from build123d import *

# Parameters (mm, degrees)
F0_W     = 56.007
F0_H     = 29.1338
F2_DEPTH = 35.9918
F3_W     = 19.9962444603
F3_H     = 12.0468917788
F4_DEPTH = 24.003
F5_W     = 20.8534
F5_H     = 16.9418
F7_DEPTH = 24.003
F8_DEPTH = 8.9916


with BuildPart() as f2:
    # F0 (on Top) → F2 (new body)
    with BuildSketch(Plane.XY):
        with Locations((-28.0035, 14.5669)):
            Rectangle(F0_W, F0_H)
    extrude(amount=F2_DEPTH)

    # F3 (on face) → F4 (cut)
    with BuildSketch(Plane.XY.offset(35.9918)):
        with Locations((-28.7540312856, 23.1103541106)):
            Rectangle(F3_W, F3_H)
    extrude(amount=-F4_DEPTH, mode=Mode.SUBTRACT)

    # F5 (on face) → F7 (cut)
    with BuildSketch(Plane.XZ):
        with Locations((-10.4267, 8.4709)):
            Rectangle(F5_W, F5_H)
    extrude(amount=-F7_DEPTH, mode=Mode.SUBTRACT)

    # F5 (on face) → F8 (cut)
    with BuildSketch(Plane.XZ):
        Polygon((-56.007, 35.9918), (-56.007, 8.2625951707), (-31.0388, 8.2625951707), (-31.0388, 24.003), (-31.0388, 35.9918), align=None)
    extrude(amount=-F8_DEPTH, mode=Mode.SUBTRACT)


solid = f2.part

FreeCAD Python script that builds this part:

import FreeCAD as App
import Part
import Sketcher

V = App.Vector
Q = App.Units.Quantity


def add_polygon(sketch, points):
    """Adds a closed chain of lines whose ends are joined by coincident constraints."""
    first, n = sketch.GeometryCount, len(points)
    for a, b in zip(points, points[1:] + points[:1]):
        sketch.addGeometry(Part.LineSegment(App.Vector(*a, 0), App.Vector(*b, 0)), False)
    for i in range(n):
        sketch.addConstraint(Sketcher.Constraint("Coincident", first + i, 2, first + (i + 1) % n, 1))

doc = App.newDocument("Part")
params = doc.addObject("Spreadsheet::Sheet", "Params")
for row, (alias, value) in enumerate([
    ("sketch1_width", "2.205 in"),
    ("sketch1_height", "1.147 in"),
    ("pad1_length", "1.417 in"),
    ("pocket1_length", "0.945 in"),
    ("sketch3_width", "0.821 in"),
    ("sketch3_height", "0.667 in"),
    ("pocket2_length", "0.945 in"),
    ("sketch4_width", "0.983 in"),
    ("pocket3_length", "0.354 in"),
], start=1):
    params.set(f"A{row}", alias)
    params.set(f"B{row}", "=" + value)
    params.setAlias(f"B{row}", alias)

body = doc.addObject("PartDesign::Body", "Body")

sketch1 = doc.addObject("Sketcher::SketchObject", "Sketch")
body.addObject(sketch1)
sketch1.AttachmentSupport = (doc.XY_Plane, [""])
sketch1.MapMode = "FlatFace"
add_polygon(sketch1, [(-56, 29), (-56, 0), (0, 0), (0, 29)])
sketch1.addConstraint([
    Sketcher.Constraint("Vertical", 0),
    Sketcher.Constraint("Horizontal", 1),
    Sketcher.Constraint("Vertical", 2),
    Sketcher.Constraint("Horizontal", 3),
    Sketcher.Constraint("Coincident", 1, 2, -1, 1),
    Sketcher.Constraint("DistanceX", 1, 1, 1, 2, Q("2.205 in")),
    Sketcher.Constraint("DistanceY", 0, 2, 0, 1, Q("1.147 in")),
])
sketch1.setExpression("Constraints[9]", "Params.sketch1_width")
sketch1.setExpression("Constraints[10]", "Params.sketch1_height")
pad1 = doc.addObject("PartDesign::Pad", "Pad")
body.addObject(pad1)
pad1.Profile = sketch1
pad1.setExpression("Length", "Params.pad1_length")

sketch2 = doc.addObject("Sketcher::SketchObject", "Sketch001")
body.addObject(sketch2)
sketch2.AttachmentSupport = (doc.XY_Plane, [""])
sketch2.MapMode = "FlatFace"
sketch2.AttachmentOffset = App.Placement(V(0, 0, 1.417 * 25.4), App.Rotation())
add_polygon(sketch2, [(-39, 29), (-39, 17), (-19, 17), (-19, 29)])
sketch2.addConstraint([
    Sketcher.Constraint("Vertical", 0),
    Sketcher.Constraint("Horizontal", 1),
    Sketcher.Constraint("Vertical", 2),
    Sketcher.Constraint("Horizontal", 3),
    Sketcher.Constraint("DistanceY", -1, 1, 2, 2, Q("1.147 in")),
    Sketcher.Constraint("DistanceY", 0, 2, 0, 1, Q("12.046892 mm")),
    Sketcher.Constraint("DistanceX", 1, 1, 1, 2, Q("19.996244 mm")),
    Sketcher.Constraint("DistanceX", 1, 2, -1, 1, Q("18.755909 mm")),
])
pocket1 = doc.addObject("PartDesign::Pocket", "Pocket")
body.addObject(pocket1)
pocket1.Profile = sketch2
pocket1.setExpression("Length", "Params.pocket1_length")

sketch3 = doc.addObject("Sketcher::SketchObject", "Sketch002")
body.addObject(sketch3)
sketch3.AttachmentSupport = (doc.XZ_Plane, [""])
sketch3.MapMode = "FlatFace"
add_polygon(sketch3, [(-21, 17), (-21, 0), (0, 0), (0, 17)])
sketch3.addConstraint([
    Sketcher.Constraint("Vertical", 0),
    Sketcher.Constraint("Horizontal", 1),
    Sketcher.Constraint("Vertical", 2),
    Sketcher.Constraint("Horizontal", 3),
    Sketcher.Constraint("Coincident", 1, 2, -1, 1),
    Sketcher.Constraint("DistanceX", 1, 1, 1, 2, Q("0.821 in")),
    Sketcher.Constraint("DistanceY", 0, 2, 0, 1, Q("0.667 in")),
])
sketch3.setExpression("Constraints[9]", "Params.sketch3_width")
sketch3.setExpression("Constraints[10]", "Params.sketch3_height")
pocket2 = doc.addObject("PartDesign::Pocket", "Pocket001")
body.addObject(pocket2)
pocket2.Profile = sketch3
pocket2.setExpression("Length", "Params.pocket2_length")

sketch4 = doc.addObject("Sketcher::SketchObject", "Sketch003")
body.addObject(sketch4)
sketch4.AttachmentSupport = (doc.XZ_Plane, [""])
sketch4.MapMode = "FlatFace"
add_polygon(sketch4, [(-56, 36), (-56, 8), (-31, 8), (-31, 36)])
sketch4.addConstraint([
    Sketcher.Constraint("Vertical", 0),
    Sketcher.Constraint("Horizontal", 1),
    Sketcher.Constraint("Vertical", 2),
    Sketcher.Constraint("Horizontal", 3),
    Sketcher.Constraint("DistanceX", 1, 1, 1, 2, Q("0.983 in")),
    Sketcher.Constraint("DistanceX", 0, 2, -1, 1, Q("2.205 in")),
    Sketcher.Constraint("DistanceY", -1, 1, 2, 2, Q("1.417 in")),
    Sketcher.Constraint("DistanceY", 0, 2, 0, 1, Q("27.729205 mm")),
])
sketch4.setExpression("Constraints[8]", "Params.sketch4_width")
pocket3 = doc.addObject("PartDesign::Pocket", "Pocket002")
body.addObject(pocket3)
pocket3.Profile = sketch4
pocket3.setExpression("Length", "Params.pocket3_length")

doc.recompute()
